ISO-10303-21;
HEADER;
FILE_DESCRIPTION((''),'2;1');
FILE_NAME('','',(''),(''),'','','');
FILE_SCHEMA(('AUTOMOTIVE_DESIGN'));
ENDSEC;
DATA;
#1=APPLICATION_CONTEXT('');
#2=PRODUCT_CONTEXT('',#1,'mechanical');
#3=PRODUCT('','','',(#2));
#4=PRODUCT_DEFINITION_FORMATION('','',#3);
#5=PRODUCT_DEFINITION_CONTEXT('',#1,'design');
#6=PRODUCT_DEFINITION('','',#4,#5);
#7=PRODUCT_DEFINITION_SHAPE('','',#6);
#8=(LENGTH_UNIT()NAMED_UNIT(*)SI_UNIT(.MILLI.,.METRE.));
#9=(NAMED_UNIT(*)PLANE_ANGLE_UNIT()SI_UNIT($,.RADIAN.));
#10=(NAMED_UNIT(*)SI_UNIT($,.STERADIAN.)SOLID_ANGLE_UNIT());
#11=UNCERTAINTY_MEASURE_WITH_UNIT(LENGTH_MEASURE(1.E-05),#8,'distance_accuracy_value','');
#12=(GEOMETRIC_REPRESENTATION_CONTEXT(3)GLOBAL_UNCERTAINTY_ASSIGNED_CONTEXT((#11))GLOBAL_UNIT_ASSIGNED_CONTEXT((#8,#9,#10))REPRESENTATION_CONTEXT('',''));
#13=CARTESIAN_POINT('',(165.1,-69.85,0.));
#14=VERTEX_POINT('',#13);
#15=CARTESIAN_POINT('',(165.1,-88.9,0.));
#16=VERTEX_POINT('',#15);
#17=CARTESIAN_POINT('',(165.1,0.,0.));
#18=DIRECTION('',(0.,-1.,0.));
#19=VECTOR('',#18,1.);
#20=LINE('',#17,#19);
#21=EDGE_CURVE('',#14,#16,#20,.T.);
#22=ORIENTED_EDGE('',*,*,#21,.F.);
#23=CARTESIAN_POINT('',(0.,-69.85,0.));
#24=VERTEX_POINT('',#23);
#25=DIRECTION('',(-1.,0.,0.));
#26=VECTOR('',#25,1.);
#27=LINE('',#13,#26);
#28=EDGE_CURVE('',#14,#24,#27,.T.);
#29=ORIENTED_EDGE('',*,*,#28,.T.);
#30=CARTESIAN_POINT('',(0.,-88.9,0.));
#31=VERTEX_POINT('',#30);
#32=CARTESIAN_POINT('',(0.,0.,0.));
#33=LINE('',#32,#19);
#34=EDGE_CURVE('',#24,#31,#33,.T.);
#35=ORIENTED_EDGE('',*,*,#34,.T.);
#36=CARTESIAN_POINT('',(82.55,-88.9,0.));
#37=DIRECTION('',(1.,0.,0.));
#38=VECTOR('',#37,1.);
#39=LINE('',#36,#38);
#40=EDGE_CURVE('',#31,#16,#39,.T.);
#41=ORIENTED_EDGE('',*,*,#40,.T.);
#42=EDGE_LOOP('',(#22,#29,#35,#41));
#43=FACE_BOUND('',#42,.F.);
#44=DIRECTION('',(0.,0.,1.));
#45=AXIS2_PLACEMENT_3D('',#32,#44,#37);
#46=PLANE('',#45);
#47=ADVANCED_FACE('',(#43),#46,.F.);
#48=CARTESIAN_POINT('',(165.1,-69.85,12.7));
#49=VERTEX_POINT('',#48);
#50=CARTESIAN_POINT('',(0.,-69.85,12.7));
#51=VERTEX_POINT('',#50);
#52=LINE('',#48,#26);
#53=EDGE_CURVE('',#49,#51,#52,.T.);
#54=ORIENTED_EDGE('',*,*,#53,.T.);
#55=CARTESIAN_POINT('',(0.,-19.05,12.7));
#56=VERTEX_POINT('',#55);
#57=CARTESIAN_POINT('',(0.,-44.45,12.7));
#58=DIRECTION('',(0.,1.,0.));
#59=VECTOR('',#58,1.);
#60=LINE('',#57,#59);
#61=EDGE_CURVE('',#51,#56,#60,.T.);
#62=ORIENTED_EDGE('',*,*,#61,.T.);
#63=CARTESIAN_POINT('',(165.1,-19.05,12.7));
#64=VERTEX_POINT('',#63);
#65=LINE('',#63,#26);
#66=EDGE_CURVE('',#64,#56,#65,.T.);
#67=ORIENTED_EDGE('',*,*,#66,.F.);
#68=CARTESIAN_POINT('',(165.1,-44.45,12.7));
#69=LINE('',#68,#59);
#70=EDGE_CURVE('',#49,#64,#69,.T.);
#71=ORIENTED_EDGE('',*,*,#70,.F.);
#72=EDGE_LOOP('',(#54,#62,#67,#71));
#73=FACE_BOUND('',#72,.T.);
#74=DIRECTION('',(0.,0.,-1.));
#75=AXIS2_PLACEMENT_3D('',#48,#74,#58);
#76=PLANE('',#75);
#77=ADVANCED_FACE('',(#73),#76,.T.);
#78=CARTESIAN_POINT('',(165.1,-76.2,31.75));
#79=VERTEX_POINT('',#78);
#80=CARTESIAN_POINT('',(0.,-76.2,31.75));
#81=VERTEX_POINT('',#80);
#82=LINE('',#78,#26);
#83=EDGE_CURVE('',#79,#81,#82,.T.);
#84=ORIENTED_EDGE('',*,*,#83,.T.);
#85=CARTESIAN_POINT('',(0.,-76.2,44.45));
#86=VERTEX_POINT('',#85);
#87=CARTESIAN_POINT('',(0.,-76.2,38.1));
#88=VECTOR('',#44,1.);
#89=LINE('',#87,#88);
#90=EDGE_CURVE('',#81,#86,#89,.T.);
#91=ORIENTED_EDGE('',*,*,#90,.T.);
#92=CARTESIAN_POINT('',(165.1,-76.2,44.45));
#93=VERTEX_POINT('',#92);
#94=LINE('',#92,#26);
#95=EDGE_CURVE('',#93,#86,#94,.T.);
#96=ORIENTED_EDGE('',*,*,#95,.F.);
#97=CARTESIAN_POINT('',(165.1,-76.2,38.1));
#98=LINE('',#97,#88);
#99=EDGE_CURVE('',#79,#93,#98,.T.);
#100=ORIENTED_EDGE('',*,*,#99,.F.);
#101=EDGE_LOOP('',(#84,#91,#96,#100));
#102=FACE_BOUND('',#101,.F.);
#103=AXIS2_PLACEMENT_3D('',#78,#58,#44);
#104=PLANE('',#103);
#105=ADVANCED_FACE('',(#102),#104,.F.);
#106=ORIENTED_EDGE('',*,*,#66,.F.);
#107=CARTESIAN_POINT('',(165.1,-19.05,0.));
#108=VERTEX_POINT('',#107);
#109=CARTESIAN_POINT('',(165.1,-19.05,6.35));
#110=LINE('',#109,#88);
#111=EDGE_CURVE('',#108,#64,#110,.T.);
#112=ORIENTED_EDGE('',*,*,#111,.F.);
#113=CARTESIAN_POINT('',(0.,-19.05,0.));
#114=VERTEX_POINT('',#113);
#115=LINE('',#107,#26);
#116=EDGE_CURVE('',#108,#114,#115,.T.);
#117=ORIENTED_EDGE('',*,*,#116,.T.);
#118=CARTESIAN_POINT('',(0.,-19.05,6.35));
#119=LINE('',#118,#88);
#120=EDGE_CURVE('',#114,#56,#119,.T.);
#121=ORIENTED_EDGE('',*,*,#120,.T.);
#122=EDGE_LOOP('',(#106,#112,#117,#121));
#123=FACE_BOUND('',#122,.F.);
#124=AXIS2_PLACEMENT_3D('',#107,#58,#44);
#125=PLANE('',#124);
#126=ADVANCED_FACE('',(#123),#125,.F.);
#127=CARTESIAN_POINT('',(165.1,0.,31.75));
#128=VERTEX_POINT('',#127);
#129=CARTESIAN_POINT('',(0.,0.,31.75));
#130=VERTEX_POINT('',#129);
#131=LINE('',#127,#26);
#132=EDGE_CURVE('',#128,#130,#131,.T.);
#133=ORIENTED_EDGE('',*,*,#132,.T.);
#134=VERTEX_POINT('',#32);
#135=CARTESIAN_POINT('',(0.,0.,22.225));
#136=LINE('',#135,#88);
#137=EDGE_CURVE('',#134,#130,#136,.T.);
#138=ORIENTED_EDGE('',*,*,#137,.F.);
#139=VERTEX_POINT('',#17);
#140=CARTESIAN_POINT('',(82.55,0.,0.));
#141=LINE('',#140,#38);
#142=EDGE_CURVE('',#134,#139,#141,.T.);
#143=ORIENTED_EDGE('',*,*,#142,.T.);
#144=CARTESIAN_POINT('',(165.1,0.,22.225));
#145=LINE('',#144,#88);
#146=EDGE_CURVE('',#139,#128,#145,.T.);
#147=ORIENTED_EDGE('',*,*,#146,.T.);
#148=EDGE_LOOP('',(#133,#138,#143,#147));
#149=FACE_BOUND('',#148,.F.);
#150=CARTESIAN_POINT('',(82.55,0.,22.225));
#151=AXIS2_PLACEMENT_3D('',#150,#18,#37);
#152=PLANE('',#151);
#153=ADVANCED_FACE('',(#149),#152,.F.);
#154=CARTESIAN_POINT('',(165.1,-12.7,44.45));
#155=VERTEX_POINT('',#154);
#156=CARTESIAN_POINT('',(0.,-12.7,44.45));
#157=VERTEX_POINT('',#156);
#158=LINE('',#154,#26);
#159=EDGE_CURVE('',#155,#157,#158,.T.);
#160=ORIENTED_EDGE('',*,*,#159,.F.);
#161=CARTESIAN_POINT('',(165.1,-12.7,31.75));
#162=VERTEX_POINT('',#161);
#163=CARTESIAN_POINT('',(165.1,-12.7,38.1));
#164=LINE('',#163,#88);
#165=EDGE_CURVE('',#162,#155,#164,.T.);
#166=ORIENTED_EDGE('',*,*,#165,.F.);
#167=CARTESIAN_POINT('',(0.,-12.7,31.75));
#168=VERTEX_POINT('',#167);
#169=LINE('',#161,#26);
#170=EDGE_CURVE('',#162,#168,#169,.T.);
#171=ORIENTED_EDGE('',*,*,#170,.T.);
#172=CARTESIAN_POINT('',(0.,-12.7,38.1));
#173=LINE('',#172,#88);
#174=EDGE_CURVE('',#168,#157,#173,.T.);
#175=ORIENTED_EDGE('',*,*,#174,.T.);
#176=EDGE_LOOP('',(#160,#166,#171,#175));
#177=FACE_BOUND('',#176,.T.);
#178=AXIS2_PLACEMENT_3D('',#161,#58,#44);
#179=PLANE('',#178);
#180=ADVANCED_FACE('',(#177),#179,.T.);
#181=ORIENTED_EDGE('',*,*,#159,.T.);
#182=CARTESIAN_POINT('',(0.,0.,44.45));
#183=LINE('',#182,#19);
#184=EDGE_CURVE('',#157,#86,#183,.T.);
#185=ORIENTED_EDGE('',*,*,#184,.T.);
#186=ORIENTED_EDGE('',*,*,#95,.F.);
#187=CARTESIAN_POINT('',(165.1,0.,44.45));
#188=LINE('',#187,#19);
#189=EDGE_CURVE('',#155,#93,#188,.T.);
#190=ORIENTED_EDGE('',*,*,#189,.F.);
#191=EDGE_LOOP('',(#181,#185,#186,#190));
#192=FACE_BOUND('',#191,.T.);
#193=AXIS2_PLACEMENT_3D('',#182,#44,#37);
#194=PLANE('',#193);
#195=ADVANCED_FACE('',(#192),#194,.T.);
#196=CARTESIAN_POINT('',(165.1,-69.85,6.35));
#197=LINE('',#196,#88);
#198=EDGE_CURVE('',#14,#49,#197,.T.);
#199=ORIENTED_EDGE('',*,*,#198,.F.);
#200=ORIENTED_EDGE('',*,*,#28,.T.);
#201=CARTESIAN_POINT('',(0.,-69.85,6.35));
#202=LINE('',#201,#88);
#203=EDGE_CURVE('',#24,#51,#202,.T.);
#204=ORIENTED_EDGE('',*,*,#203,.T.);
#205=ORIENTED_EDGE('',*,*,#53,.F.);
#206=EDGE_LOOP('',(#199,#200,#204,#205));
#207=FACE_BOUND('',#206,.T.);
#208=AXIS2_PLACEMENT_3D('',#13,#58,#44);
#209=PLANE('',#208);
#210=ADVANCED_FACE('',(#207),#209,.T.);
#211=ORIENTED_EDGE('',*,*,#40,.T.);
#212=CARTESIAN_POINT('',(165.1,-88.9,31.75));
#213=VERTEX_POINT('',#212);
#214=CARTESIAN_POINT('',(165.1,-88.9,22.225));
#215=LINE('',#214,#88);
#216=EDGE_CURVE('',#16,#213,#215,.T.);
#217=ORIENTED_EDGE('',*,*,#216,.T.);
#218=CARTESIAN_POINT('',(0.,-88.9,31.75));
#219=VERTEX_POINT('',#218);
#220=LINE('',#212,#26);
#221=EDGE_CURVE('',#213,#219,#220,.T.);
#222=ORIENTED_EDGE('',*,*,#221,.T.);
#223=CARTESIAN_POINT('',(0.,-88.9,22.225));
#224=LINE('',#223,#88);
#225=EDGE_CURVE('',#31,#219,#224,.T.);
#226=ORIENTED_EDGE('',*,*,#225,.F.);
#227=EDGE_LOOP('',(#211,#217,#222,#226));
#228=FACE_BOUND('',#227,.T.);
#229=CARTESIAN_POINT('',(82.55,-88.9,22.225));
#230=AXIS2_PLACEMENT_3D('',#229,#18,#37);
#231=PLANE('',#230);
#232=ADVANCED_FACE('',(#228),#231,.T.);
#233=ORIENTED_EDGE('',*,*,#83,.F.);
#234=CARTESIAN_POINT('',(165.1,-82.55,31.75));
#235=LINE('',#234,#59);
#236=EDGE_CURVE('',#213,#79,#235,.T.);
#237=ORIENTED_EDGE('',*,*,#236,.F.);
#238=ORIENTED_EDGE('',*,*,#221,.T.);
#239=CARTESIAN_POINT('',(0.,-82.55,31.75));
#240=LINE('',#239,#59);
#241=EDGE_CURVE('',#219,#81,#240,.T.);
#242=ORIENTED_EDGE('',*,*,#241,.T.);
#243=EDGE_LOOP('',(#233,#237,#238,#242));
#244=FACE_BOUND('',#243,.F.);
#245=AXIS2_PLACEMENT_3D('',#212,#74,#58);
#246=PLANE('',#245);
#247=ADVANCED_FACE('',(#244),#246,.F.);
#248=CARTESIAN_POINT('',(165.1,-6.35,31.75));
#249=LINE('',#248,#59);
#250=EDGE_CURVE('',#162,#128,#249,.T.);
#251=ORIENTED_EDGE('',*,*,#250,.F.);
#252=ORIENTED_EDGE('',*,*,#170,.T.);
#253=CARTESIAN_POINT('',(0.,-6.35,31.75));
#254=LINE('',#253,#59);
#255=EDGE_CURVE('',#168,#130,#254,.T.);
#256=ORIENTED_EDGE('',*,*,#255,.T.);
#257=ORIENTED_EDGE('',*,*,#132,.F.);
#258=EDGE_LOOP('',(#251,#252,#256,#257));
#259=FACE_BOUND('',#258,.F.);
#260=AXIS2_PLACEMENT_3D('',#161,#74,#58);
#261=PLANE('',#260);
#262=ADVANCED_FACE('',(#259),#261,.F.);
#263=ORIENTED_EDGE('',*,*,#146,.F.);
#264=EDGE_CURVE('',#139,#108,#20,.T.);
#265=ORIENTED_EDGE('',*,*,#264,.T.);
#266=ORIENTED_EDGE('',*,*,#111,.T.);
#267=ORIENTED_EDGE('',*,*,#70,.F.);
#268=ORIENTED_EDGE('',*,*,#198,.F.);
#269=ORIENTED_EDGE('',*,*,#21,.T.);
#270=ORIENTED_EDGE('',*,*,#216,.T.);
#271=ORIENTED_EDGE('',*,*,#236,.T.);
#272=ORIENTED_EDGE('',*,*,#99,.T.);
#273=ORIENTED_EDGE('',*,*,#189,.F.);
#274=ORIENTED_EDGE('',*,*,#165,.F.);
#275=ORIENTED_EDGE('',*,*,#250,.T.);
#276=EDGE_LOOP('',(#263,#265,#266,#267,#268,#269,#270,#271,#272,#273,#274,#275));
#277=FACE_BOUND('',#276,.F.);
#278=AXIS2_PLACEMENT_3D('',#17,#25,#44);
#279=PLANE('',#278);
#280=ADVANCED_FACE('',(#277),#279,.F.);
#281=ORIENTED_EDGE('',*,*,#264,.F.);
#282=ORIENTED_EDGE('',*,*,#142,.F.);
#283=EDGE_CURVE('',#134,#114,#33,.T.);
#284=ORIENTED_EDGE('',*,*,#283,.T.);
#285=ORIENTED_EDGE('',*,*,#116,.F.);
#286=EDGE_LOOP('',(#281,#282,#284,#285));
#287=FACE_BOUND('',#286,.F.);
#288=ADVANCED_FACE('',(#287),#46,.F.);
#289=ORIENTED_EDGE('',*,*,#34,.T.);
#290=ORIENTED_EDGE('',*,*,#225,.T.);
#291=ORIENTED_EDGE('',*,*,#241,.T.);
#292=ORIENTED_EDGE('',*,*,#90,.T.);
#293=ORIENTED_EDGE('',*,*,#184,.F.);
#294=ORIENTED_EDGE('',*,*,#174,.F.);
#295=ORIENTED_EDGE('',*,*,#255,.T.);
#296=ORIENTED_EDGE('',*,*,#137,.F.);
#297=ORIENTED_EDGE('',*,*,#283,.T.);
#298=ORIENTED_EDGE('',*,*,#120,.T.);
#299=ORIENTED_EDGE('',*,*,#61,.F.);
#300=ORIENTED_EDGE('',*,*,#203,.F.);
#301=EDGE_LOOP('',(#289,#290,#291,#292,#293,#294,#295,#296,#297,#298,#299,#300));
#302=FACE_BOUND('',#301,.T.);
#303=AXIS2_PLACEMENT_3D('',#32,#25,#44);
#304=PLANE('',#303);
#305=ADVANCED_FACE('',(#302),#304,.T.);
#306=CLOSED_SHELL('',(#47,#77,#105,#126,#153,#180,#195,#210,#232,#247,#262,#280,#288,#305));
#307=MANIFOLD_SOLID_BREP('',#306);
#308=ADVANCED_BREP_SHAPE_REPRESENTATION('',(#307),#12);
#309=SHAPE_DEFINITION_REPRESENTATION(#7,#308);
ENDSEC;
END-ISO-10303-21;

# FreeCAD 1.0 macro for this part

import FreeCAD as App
import Part
import Sketcher
from FreeCAD import Vector
Q = App.Units.Quantity

doc = App.newDocument("Part")
body = doc.addObject("PartDesign::Body", "Body")

# Sketch on XZ plane
sketch1 = body.newObject("Sketcher::SketchObject", "Sketch")
sketch1.AttachmentSupport = (doc.getObject("XZ_Plane"), [""])
sketch1.MapMode = "FlatFace"
sketch1.addGeometry(Part.LineSegment(Vector(0, 44.45, 0), Vector(0, 0, 0)), False)
sketch1.addGeometry(Part.LineSegment(Vector(0, 0, 0), Vector(165.1, 0, 0)), False)
sketch1.addGeometry(Part.LineSegment(Vector(165.1, 0, 0), Vector(165.1, 44.45, 0)), False)
sketch1.addGeometry(Part.LineSegment(Vector(165.1, 44.45, 0), Vector(0, 44.45, 0)), False)
sketch1.addConstraint(Sketcher.Constraint("Coincident", 0, 2, 1, 1))
sketch1.addConstraint(Sketcher.Constraint("Coincident", 1, 2, 2, 1))
sketch1.addConstraint(Sketcher.Constraint("Coincident", 2, 2, 3, 1))
sketch1.addConstraint(Sketcher.Constraint("Coincident", 3, 2, 0, 1))
sketch1.addConstraint(Sketcher.Constraint("Vertical", 0))
sketch1.addConstraint(Sketcher.Constraint("Horizontal", 1))
sketch1.addConstraint(Sketcher.Constraint("Vertical", 2))
sketch1.addConstraint(Sketcher.Constraint("Horizontal", 3))
sketch1.addConstraint(Sketcher.Constraint("Coincident", 0, 2, -1, 1))
sketch1.addConstraint(Sketcher.Constraint("DistanceX", 1, 1, 1, 2, Q("6.5 in")))
sketch1.addConstraint(Sketcher.Constraint("DistanceY", 0, 2, 0, 1, Q("1.75 in")))
pad1 = body.newObject("PartDesign::Pad", "Pad")
pad1.Profile = sketch1
pad1.Length = Q("3.5 in")

# Sketch on YZ plane
sketch2 = body.newObject("Sketcher::SketchObject", "Sketch001")
sketch2.AttachmentSupport = (doc.getObject("YZ_Plane"), [""])
sketch2.MapMode = "FlatFace"
sketch2.AttachmentOffset = App.Placement(Vector(0, 0, 6.5 * 25.4), App.Rotation())
sketch2.addGeometry(Part.LineSegment(Vector(-69.85, 12.7, 0), Vector(-69.85, 0, 0)), False)
sketch2.addGeometry(Part.LineSegment(Vector(-69.85, 0, 0), Vector(-19.05, 0, 0)), False)
sketch2.addGeometry(Part.LineSegment(Vector(-19.05, 0, 0), Vector(-19.05, 12.7, 0)), False)
sketch2.addGeometry(Part.LineSegment(Vector(-19.05, 12.7, 0), Vector(-69.85, 12.7, 0)), False)
sketch2.addConstraint(Sketcher.Constraint("Coincident", 0, 2, 1, 1))
sketch2.addConstraint(Sketcher.Constraint("Coincident", 1, 2, 2, 1))
sketch2.addConstraint(Sketcher.Constraint("Coincident", 2, 2, 3, 1))
sketch2.addConstraint(Sketcher.Constraint("Coincident", 3, 2, 0, 1))
sketch2.addConstraint(Sketcher.Constraint("Vertical", 0))
sketch2.addConstraint(Sketcher.Constraint("Horizontal", 1))
sketch2.addConstraint(Sketcher.Constraint("Vertical", 2))
sketch2.addConstraint(Sketcher.Constraint("Horizontal", 3))
sketch2.addConstraint(Sketcher.Constraint("PointOnObject", 0, 2, -1))
sketch2.addConstraint(Sketcher.Constraint("DistanceX", 1, 1, 1, 2, Q("2 in")))
sketch2.addConstraint(Sketcher.Constraint("DistanceY", 0, 2, 0, 1, Q("0.5 in")))
sketch2.addConstraint(Sketcher.Constraint("DistanceX", 0, 2, -1, 1, Q("2.75 in")))
pocket1 = body.newObject("PartDesign::Pocket", "Pocket")
pocket1.Profile = sketch2
pocket1.Length = Q("6.5 in")

# Sketch on YZ plane
sketch3 = body.newObject("Sketcher::SketchObject", "Sketch002")
sketch3.AttachmentSupport = (doc.getObject("YZ_Plane"), [""])
sketch3.MapMode = "FlatFace"
sketch3.AttachmentOffset = App.Placement(Vector(0, 0, 6.5 * 25.4), App.Rotation())
sketch3.addGeometry(Part.LineSegment(Vector(-88.9, 44.45, 0), Vector(-88.9, 31.75, 0)), False)
sketch3.addGeometry(Part.LineSegment(Vector(-88.9, 31.75, 0), Vector(-76.2, 31.75, 0)), False)
sketch3.addGeometry(Part.LineSegment(Vector(-76.2, 31.75, 0), Vector(-76.2, 44.45, 0)), False)
sketch3.addGeometry(Part.LineSegment(Vector(-76.2, 44.45, 0), Vector(-88.9, 44.45, 0)), False)
sketch3.addGeometry(Part.LineSegment(Vector(-12.7, 44.45, 0), Vector(-12.7, 31.75, 0)), False)
sketch3.addGeometry(Part.LineSegment(Vector(-12.7, 31.75, 0), Vector(0, 31.75, 0)), False)
sketch3.addGeometry(Part.LineSegment(Vector(0, 31.75, 0), Vector(0, 44.45, 0)), False)
sketch3.addGeometry(Part.LineSegment(Vector(0, 44.45, 0), Vector(-12.7, 44.45, 0)), False)
sketch3.addConstraint(Sketcher.Constraint("Coincident", 0, 2, 1, 1))
sketch3.addConstraint(Sketcher.Constraint("Coincident", 1, 2, 2, 1))
sketch3.addConstraint(Sketcher.Constraint("Coincident", 2, 2, 3, 1))
sketch3.addConstraint(Sketcher.Constraint("Coincident", 3, 2, 0, 1))
sketch3.addConstraint(Sketcher.Constraint("Coincident", 4, 2, 5, 1))
sketch3.addConstraint(Sketcher.Constraint("Coincident", 5, 2, 6, 1))
sketch3.addConstraint(Sketcher.Constraint("Coincident", 6, 2, 7, 1))
sketch3.addConstraint(Sketcher.Constraint("Coincident", 7, 2, 4, 1))
sketch3.addConstraint(Sketcher.Constraint("Vertical", 0))
sketch3.addConstraint(Sketcher.Constraint("Horizontal", 1))
sketch3.addConstraint(Sketcher.Constraint("Vertical", 2))
sketch3.addConstraint(Sketcher.Constraint("Horizontal", 3))
sketch3.addConstraint(Sketcher.Constraint("Vertical", 4))
sketch3.addConstraint(Sketcher.Constraint("Horizontal", 5))
sketch3.addConstraint(Sketcher.Constraint("Vertical", 6))
sketch3.addConstraint(Sketcher.Constraint("Horizontal", 7))
sketch3.addConstraint(Sketcher.Constraint("PointOnObject", 5, 2, -2))
sketch3.addConstraint(Sketcher.Constraint("Horizontal", 1, 2, 4, 2))
sketch3.addConstraint(Sketcher.Constraint("Horizontal", 3, 2, 6, 2))
sketch3.addConstraint(Sketcher.Constraint("Equal", 3, 5))
sketch3.addConstraint(Sketcher.Constraint("Equal", 7, 0))
sketch3.addConstraint(Sketcher.Constraint("DistanceX", 1, 1, 1, 2, Q("0.5 in")))
sketch3.addConstraint(Sketcher.Constraint("DistanceX", 1, 2, -1, 1, Q("3 in")))
sketch3.addConstraint(Sketcher.Constraint("DistanceY", -1, 1, 0, 2, Q("1.25 in")))
pocket2 = body.newObject("PartDesign::Pocket", "Pocket001")
pocket2.Profile = sketch3
pocket2.Length = Q("6.5 in")

doc.recompute()
